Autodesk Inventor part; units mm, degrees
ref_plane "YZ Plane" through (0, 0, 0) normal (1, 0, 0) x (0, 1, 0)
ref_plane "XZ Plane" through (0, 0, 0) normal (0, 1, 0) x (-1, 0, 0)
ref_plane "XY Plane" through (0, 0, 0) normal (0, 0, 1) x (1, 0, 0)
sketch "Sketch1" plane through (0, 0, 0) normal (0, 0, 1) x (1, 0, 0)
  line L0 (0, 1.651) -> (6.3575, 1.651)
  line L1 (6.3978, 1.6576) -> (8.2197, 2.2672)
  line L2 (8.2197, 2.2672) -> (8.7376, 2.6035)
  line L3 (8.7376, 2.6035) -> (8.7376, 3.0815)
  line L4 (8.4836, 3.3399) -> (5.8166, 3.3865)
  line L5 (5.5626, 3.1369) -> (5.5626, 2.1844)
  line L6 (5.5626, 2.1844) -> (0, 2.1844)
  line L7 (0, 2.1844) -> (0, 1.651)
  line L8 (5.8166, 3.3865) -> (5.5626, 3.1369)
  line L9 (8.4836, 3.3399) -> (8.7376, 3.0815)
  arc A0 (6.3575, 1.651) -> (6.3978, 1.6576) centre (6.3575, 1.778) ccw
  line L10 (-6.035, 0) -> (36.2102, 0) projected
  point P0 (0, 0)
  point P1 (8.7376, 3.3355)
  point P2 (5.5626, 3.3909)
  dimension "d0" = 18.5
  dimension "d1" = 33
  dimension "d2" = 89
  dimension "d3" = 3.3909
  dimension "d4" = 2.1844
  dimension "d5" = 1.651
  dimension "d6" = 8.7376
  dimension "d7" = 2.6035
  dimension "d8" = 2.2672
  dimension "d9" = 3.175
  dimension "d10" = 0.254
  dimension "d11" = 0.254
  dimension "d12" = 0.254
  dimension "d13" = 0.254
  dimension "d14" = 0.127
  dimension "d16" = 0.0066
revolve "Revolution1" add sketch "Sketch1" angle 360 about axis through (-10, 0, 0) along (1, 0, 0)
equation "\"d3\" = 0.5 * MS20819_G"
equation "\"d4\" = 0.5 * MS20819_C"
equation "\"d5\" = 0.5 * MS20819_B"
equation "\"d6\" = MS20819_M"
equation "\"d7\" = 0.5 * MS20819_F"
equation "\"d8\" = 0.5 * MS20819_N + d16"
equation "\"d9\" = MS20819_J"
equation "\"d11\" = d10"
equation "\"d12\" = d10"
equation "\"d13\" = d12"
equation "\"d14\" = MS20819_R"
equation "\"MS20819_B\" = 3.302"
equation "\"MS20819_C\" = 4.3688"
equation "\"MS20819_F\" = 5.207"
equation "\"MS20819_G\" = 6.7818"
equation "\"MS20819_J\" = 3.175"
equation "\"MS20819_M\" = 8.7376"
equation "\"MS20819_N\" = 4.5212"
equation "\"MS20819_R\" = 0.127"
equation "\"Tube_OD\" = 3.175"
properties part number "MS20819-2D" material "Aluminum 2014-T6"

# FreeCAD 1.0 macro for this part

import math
import FreeCAD as App
import Part
import Sketcher
from FreeCAD import Vector
Q = App.Units.Quantity

doc = App.newDocument("Part")
params = doc.addObject("Spreadsheet::Sheet", "Params")
for row, (alias, value) in enumerate([
    ("sketch1_width", "0.219 in"),
    ("revolution_angle", "360 deg"),
], start=1):
    params.set(f"A{row}", alias)
    params.set(f"B{row}", "=" + value)
    params.setAlias(f"B{row}", alias)

body = doc.addObject("PartDesign::Body", "Body")

sketch1 = doc.addObject("Sketcher::SketchObject", "Sketch")
body.addObject(sketch1)
sketch1.AttachmentSupport = (doc.XY_Plane, [""])
sketch1.MapMode = "FlatFace"
sketch1.addGeometry([
    Part.LineSegment(Vector(0, 2.184, 0), Vector(0, 1.651, 0)),
    Part.LineSegment(Vector(0, 1.651, 0), Vector(6.357, 1.651, 0)),
    Part.ArcOfCircle(Part.Circle(Vector(6.358, 1.777, 0), Vector(0, 0, 1), 0.126), math.radians(-90.05), math.radians(-71.35)),
    Part.LineSegment(Vector(6.398, 1.658, 0), Vector(8.22, 2.267, 0)),
    Part.LineSegment(Vector(8.22, 2.267, 0), Vector(8.738, 2.603, 0)),
    Part.LineSegment(Vector(8.738, 2.603, 0), Vector(8.738, 3.082, 0)),
    Part.LineSegment(Vector(8.738, 3.082, 0), Vector(8.484, 3.34, 0)),
    Part.LineSegment(Vector(8.484, 3.34, 0), Vector(5.817, 3.386, 0)),
    Part.LineSegment(Vector(5.817, 3.386, 0), Vector(5.563, 3.137, 0)),
    Part.LineSegment(Vector(5.563, 3.137, 0), Vector(5.563, 2.184, 0)),
    Part.LineSegment(Vector(5.563, 2.184, 0), Vector(0, 2.184, 0)),
], False)
sketch1.addConstraint([
    Sketcher.Constraint("Coincident", 0, 2, 1, 1),
    Sketcher.Constraint("Coincident", 1, 2, 2, 1),
    Sketcher.Constraint("Coincident", 2, 2, 3, 1),
    Sketcher.Constraint("Coincident", 3, 2, 4, 1),
    Sketcher.Constraint("Coincident", 4, 2, 5, 1),
    Sketcher.Constraint("Coincident", 5, 2, 6, 1),
    Sketcher.Constraint("Coincident", 6, 2, 7, 1),
    Sketcher.Constraint("Coincident", 7, 2, 8, 1),
    Sketcher.Constraint("Coincident", 8, 2, 9, 1),
    Sketcher.Constraint("Coincident", 9, 2, 10, 1),
    Sketcher.Constraint("Coincident", 10, 2, 0, 1),
    Sketcher.Constraint("Vertical", 0),
    Sketcher.Constraint("Horizontal", 1),
    Sketcher.Constraint("Vertical", 5),
    Sketcher.Constraint("Vertical", 9),
    Sketcher.Constraint("Horizontal", 10),
    Sketcher.Constraint("PointOnObject", 0, 2, -2),
    Sketcher.Constraint("Perpendicular", 6, 8),
    Sketcher.Constraint("Vertical", 2, 3, 1, 2),
    Sketcher.Constraint("Angle", 3, Q("18.5 deg")),
    Sketcher.Constraint("DistanceX", 6, 2, 5, 2, Q("0.01 in")),
    Sketcher.Constraint("DistanceX", 8, 2, 7, 2, Q("0.01 in")),
    Sketcher.Constraint("DistanceY", -1, 1, 0, 2, Q("0.065 in")),
    Sketcher.Constraint("DistanceX", -1, 1, 4, 2, Q("0.344 in")),
    Sketcher.Constraint("DistanceY", -1, 1, 9, 2, Q("0.086 in")),
    Sketcher.Constraint("Angle", 7, Q("178.999 deg")),
    Sketcher.Constraint("DistanceY", -1, 1, 4, 2, Q("0.1025 in")),
    Sketcher.Constraint("Angle", 8, Q("-135.5006 deg")),
    Sketcher.Constraint("DistanceX", 10, 2, 10, 1, Q("0.219 in")),
    Sketcher.Constraint("DistanceY", -1, 1, 3, 2, 2.2672),
    Sketcher.Constraint("Radius", 2, 0.1257),
    Sketcher.Constraint("DistanceY", 1, 2, 2, 2, 0.0066),
    Sketcher.Constraint("DistanceX", 1, 1, 1, 2, Q("0.2503 in")),
    Sketcher.Constraint("DistanceY", 9, 2, 9, 1, Q("0.0375 in")),
])
sketch1.setExpression("Constraints[28]", "Params.sketch1_width")
revolution = doc.addObject("PartDesign::Revolution", "Revolution")
body.addObject(revolution)
revolution.Profile = sketch1
revolution.ReferenceAxis = (sketch1, ["H_Axis"])
revolution.setExpression("Angle", "Params.revolution_angle")

doc.recompute()
